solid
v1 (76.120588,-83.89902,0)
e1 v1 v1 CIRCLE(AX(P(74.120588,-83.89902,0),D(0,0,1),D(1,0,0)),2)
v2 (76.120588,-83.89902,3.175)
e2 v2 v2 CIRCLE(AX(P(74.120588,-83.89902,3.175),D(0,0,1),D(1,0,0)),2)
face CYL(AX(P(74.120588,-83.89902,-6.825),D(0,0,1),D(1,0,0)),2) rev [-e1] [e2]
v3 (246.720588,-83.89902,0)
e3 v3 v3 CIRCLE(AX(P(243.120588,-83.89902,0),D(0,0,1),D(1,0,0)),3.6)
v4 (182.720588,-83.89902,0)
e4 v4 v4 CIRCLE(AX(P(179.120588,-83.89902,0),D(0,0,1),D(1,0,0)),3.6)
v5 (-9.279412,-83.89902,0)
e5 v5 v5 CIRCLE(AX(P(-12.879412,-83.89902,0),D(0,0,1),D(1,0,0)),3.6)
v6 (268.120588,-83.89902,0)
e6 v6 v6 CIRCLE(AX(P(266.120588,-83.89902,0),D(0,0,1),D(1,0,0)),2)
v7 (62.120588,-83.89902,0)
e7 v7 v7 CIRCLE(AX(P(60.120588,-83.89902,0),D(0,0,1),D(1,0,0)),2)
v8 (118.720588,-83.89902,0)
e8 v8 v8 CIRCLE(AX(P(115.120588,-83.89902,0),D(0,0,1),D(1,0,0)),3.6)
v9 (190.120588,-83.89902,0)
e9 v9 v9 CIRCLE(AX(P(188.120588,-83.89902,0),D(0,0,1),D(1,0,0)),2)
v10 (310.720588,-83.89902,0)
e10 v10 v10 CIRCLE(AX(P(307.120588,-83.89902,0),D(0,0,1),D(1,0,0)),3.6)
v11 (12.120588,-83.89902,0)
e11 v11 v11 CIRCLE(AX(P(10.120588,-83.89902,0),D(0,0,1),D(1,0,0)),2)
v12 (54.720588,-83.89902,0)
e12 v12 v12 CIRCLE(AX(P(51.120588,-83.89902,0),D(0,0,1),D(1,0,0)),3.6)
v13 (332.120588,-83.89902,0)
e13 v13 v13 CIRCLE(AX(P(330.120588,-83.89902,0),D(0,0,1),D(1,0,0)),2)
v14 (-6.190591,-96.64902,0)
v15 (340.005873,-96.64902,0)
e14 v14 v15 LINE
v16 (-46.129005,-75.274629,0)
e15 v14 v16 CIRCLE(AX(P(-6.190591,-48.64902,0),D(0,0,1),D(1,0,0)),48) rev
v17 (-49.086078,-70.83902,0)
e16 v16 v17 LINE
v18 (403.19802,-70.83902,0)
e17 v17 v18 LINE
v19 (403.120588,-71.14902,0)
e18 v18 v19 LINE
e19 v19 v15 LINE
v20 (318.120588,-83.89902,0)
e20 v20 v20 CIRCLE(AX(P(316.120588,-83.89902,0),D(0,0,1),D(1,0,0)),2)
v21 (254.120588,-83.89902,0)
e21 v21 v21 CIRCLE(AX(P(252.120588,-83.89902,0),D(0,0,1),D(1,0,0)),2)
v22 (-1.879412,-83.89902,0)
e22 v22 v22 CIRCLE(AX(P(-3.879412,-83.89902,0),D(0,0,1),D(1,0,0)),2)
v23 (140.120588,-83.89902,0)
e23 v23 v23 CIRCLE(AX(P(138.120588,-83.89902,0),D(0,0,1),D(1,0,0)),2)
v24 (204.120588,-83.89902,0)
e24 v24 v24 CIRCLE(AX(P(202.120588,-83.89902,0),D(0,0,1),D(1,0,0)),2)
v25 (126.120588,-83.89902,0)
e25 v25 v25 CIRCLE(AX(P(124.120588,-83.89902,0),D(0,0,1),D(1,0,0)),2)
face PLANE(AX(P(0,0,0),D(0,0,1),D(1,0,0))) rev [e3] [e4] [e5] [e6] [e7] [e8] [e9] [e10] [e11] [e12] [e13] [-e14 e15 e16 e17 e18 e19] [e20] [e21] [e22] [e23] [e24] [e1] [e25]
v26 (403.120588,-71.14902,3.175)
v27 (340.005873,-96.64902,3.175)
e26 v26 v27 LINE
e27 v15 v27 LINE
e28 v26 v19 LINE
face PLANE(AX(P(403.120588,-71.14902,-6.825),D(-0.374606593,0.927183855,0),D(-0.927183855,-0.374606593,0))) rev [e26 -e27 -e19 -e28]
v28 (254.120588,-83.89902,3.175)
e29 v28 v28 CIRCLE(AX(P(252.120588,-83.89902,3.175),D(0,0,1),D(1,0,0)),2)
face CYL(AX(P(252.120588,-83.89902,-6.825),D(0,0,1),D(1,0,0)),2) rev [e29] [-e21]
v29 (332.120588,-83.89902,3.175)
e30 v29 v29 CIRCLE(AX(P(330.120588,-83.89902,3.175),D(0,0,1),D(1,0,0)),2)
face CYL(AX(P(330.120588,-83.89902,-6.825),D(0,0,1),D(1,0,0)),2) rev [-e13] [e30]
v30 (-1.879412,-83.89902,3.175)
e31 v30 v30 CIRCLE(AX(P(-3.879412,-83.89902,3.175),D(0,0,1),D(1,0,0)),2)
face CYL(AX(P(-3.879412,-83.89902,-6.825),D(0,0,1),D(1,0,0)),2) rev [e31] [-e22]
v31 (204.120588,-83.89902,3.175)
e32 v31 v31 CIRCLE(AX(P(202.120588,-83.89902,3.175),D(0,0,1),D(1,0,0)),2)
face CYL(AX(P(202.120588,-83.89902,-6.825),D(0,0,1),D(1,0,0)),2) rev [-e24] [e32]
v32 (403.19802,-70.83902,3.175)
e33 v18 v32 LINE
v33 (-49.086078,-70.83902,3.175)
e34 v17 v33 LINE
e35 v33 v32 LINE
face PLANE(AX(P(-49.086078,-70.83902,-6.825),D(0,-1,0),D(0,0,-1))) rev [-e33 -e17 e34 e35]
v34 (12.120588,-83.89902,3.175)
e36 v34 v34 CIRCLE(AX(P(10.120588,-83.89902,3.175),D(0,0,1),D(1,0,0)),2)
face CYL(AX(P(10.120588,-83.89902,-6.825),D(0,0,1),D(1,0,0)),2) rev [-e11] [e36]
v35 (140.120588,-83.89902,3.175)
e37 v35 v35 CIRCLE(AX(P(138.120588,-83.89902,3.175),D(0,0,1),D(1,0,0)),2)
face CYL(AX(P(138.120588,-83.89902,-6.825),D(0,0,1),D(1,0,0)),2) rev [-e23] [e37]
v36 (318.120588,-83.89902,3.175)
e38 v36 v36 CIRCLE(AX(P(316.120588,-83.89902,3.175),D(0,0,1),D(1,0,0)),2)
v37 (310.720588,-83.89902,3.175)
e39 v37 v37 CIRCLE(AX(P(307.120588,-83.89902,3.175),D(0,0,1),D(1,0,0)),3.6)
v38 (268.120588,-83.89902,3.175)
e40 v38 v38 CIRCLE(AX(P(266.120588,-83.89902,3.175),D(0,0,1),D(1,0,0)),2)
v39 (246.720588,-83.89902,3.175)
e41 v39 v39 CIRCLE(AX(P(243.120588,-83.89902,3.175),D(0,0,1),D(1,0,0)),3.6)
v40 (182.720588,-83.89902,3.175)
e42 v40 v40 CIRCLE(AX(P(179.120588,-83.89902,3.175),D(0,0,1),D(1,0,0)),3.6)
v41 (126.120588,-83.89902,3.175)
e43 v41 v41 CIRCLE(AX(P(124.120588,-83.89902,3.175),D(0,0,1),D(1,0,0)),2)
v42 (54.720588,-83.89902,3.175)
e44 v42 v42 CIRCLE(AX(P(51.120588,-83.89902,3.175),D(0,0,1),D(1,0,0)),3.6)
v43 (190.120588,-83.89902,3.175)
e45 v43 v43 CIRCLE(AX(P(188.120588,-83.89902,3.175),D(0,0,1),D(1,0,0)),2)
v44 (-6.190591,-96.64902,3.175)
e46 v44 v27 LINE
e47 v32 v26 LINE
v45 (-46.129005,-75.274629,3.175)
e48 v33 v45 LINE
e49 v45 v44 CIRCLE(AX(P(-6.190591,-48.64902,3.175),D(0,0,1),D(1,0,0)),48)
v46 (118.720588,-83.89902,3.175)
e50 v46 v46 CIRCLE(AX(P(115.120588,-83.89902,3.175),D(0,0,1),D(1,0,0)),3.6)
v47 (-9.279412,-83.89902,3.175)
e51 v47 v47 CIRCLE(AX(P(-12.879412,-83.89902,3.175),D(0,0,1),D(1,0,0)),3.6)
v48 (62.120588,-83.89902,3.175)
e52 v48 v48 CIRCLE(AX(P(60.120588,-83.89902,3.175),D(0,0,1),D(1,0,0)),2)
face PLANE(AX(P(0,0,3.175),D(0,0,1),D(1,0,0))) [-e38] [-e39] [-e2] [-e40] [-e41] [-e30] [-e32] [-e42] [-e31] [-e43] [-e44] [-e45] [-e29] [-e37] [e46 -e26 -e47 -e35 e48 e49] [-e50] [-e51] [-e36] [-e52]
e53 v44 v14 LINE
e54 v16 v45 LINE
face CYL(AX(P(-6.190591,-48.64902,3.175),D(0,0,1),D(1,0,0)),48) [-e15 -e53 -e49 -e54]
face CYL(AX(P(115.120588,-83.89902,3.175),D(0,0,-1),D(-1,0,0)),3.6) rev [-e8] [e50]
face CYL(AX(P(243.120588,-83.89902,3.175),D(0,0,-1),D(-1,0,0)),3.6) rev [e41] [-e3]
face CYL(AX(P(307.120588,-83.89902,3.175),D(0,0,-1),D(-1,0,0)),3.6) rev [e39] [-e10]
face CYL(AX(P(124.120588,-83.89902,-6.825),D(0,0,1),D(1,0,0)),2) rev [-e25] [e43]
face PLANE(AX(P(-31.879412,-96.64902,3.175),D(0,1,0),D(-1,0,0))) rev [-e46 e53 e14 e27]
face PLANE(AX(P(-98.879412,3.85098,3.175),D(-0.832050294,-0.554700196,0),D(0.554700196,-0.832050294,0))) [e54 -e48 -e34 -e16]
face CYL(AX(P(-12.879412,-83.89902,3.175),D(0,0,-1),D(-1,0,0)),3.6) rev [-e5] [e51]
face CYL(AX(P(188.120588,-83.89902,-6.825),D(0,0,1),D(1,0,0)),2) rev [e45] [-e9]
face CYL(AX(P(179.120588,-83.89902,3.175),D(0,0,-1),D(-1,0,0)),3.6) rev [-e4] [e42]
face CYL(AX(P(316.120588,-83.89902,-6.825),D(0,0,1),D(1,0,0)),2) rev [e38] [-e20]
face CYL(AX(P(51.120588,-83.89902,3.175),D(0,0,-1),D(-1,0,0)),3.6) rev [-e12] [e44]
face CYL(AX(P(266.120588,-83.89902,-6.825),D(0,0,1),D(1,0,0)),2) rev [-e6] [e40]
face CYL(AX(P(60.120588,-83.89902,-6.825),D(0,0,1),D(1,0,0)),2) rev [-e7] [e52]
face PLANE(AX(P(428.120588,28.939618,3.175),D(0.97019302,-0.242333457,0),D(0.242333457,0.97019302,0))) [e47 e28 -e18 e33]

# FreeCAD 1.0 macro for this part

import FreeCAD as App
import Part
import Sketcher
Q = App.Units.Quantity


def edges_at(feature, points):
    """Names of the edges that pass closest to the given points."""
    edges = feature.Shape.Edges
    near = lambda p: min(range(len(edges)), key=lambda i: edges[i].distToShape(Part.Vertex(*p))[0])
    return sorted({f"Edge{near(p) + 1}" for p in points})


def add_polygon(sketch, points):
    """Adds a closed chain of lines whose ends are joined by coincident constraints."""
    first, n = sketch.GeometryCount, len(points)
    for a, b in zip(points, points[1:] + points[:1]):
        sketch.addGeometry(Part.LineSegment(App.Vector(*a, 0), App.Vector(*b, 0)), False)
    for i in range(n):
        sketch.addConstraint(Sketcher.Constraint("Coincident", first + i, 2, first + (i + 1) % n, 1))

doc = App.newDocument("Part")
body = doc.addObject("PartDesign::Body", "Body")

# Sketch on XY plane
sketch1 = body.newObject("Sketcher::SketchObject", "Sketch")
sketch1.AttachmentSupport = (doc.getObject("XY_Plane"), [""])
sketch1.MapMode = "FlatFace"
add_polygon(sketch1, [(428, 29), (-116, 29), (-99, 4), (-32, -97), (366, -97), (403, -71)])  # lines 0-5
sketch1.addConstraint(Sketcher.Constraint("Horizontal", 0))
sketch1.addConstraint(Sketcher.Constraint("Horizontal", 3))
sketch1.addConstraint(Sketcher.Constraint("Parallel", 1, 2))
sketch1.addConstraint(Sketcher.Constraint("DistanceX", -1, 1, 3, 2, 366.0))
sketch1.addConstraint(Sketcher.Constraint("DistanceX", 1, 2, 2, 2, 67.0))
sketch1.addConstraint(Sketcher.Constraint("DistanceX", 2, 2, 4, 2, 435.0))
sketch1.addConstraint(Sketcher.Constraint("DistanceY", 4, 2, 1, 2, 75.0))
sketch1.addConstraint(Sketcher.Constraint("DistanceX", 4, 2, 5, 2, 25.0))
sketch1.addConstraint(Sketcher.Constraint("DistanceY", 2, 2, 1, 2, 100.5))
sketch1.addConstraint(Sketcher.Constraint("DistanceX", 0, 2, 0, 1, 543.725758))
sketch1.addConstraint(Sketcher.Constraint("DistanceX", 3, 1, 3, 2, 397.879412))
sketch1.addConstraint(Sketcher.Constraint("DistanceY", -1, 1, 1, 2, 3.85098))
pad1 = body.newObject("PartDesign::Pad", "Pad")
pad1.Profile = sketch1
pad1.Length = 3.175

# Sketch on XY plane
sketch2 = body.newObject("Sketcher::SketchObject", "Sketch001")
sketch2.AttachmentSupport = (doc.getObject("XY_Plane"), [""])
sketch2.MapMode = "FlatFace"
sketch2.addGeometry(Part.Circle(App.Vector(-12.9, -83.9, 0), App.Vector(0, 0, 1), 3.6), False)
sketch2.addGeometry(Part.Circle(App.Vector(51.1, -83.9, 0), App.Vector(0, 0, 1), 3.6), False)
sketch2.addGeometry(Part.Circle(App.Vector(115.1, -83.9, 0), App.Vector(0, 0, 1), 3.6), False)
sketch2.addGeometry(Part.Circle(App.Vector(179.1, -83.9, 0), App.Vector(0, 0, 1), 3.6), False)
sketch2.addGeometry(Part.Circle(App.Vector(243.1, -83.9, 0), App.Vector(0, 0, 1), 3.6), False)
sketch2.addGeometry(Part.Circle(App.Vector(307.1, -83.9, 0), App.Vector(0, 0, 1), 3.6), False)
sketch2.addConstraint(Sketcher.Constraint("Equal", 0, 1))
sketch2.addConstraint(Sketcher.Constraint("Equal", 1, 2))
sketch2.addConstraint(Sketcher.Constraint("Equal", 2, 3))
sketch2.addConstraint(Sketcher.Constraint("Equal", 3, 4))
sketch2.addConstraint(Sketcher.Constraint("Equal", 4, 5))
sketch2.addConstraint(Sketcher.Constraint("Horizontal", 0, 3, 1, 3))
sketch2.addConstraint(Sketcher.Constraint("Horizontal", 1, 3, 2, 3))
sketch2.addConstraint(Sketcher.Constraint("Horizontal", 2, 3, 3, 3))
sketch2.addConstraint(Sketcher.Constraint("Horizontal", 3, 3, 4, 3))
sketch2.addConstraint(Sketcher.Constraint("Horizontal", 4, 3, 5, 3))
sketch2.addConstraint(Sketcher.Constraint("Diameter", 0, 7.2))
sketch2.addConstraint(Sketcher.Constraint("DistanceX", 0, 3, 1, 3, 64.0))
sketch2.addConstraint(Sketcher.Constraint("DistanceX", 1, 3, 2, 3, 64.0))
sketch2.addConstraint(Sketcher.Constraint("DistanceX", 2, 3, 3, 3, 64.0))
sketch2.addConstraint(Sketcher.Constraint("DistanceX", 3, 3, 4, 3, 64.0))
sketch2.addConstraint(Sketcher.Constraint("DistanceX", 4, 3, 5, 3, 64.0))
sketch2.addConstraint(Sketcher.Constraint("DistanceX", 0, 3, -1, 1, 12.879412))
sketch2.addConstraint(Sketcher.Constraint("DistanceY", 0, 3, -1, 1, 83.89902))
pocket1 = body.newObject("PartDesign::Pocket", "Pocket")
pocket1.Profile = sketch2
pocket1.Type = "ThroughAll"
pocket1.Reversed = True
doc.recompute()

fillet = body.newObject("PartDesign::Fillet", "Fillet")
fillet.Base = (pocket1, edges_at(pocket1, [(-31.879, -96.649, 1.587)]))
fillet.Radius = 48

# Sketch on XY plane
sketch3 = body.newObject("Sketcher::SketchObject", "Sketch002")
sketch3.AttachmentSupport = (doc.getObject("XY_Plane"), [""])
sketch3.MapMode = "FlatFace"
sketch3.AttachmentOffset = App.Placement(App.Vector(0, 0, 3.175), App.Rotation())
add_polygon(sketch3, [(403, -71), (340, -97), (366, -97)])  # lines 0-2
sketch3.addConstraint(Sketcher.Constraint("Horizontal", 1))
sketch3.addConstraint(Sketcher.Constraint("Angle", 0, Q("-158 deg")))
sketch3.addConstraint(Sketcher.Constraint("DistanceX", -1, 1, 1, 2, 366.0))
sketch3.addConstraint(Sketcher.Constraint("DistanceY", 1, 2, 2, 2, 25.5))
sketch3.addConstraint(Sketcher.Constraint("Distance", 2, 45.035409))
sketch3.addConstraint(Sketcher.Constraint("DistanceY", 0, 2, -1, 1, 96.64902))
pocket2 = body.newObject("PartDesign::Pocket", "Pocket001")
pocket2.Profile = sketch3
pocket2.Length = 10

# Sketch on XY plane
sketch4 = body.newObject("Sketcher::SketchObject", "Sketch003")
sketch4.AttachmentSupport = (doc.getObject("XY_Plane"), [""])
sketch4.MapMode = "FlatFace"
sketch4.AttachmentOffset = App.Placement(App.Vector(0, 0, 3.175), App.Rotation())
add_polygon(sketch4, [(-49, -71), (403, -71), (428, 29), (-116, 29)])  # lines 0-3
sketch4.addConstraint(Sketcher.Constraint("Horizontal", 0))
sketch4.addConstraint(Sketcher.Constraint("Horizontal", 2))
sketch4.addConstraint(Sketcher.Constraint("DistanceX", 0, 1, 0, 2, 452.284098))
sketch4.addConstraint(Sketcher.Constraint("DistanceX", 2, 2, 2, 1, 543.725758))
sketch4.addConstraint(Sketcher.Constraint("Distance", 1, 102.84411))
sketch4.addConstraint(Sketcher.Constraint("DistanceX", -1, 1, 0, 2, 403.19802))
sketch4.addConstraint(Sketcher.Constraint("DistanceY", 0, 2, -1, 1, 70.83902))
sketch4.addConstraint(Sketcher.Constraint("DistanceX", -1, 1, 1, 2, 428.120588))
pocket3 = body.newObject("PartDesign::Pocket", "Pocket002")
pocket3.Profile = sketch4
pocket3.Length = 10

# Sketch on XY plane
sketch5 = body.newObject("Sketcher::SketchObject", "Sketch004")
sketch5.AttachmentSupport = (doc.getObject("XY_Plane"), [""])
sketch5.MapMode = "FlatFace"
sketch5.AttachmentOffset = App.Placement(App.Vector(0, 0, 3.175), App.Rotation())
sketch5.addGeometry(Part.Circle(App.Vector(-3.9, -83.9, 0), App.Vector(0, 0, 1), 2), False)
sketch5.addGeometry(Part.Circle(App.Vector(10.1, -83.9, 0), App.Vector(0, 0, 1), 2), False)
sketch5.addGeometry(Part.Circle(App.Vector(60.1, -83.9, 0), App.Vector(0, 0, 1), 2), False)
sketch5.addGeometry(Part.Circle(App.Vector(74.1, -83.9, 0), App.Vector(0, 0, 1), 2), False)
sketch5.addGeometry(Part.Circle(App.Vector(124.1, -83.9, 0), App.Vector(0, 0, 1), 2), False)
sketch5.addGeometry(Part.Circle(App.Vector(138.1, -83.9, 0), App.Vector(0, 0, 1), 2), False)
sketch5.addGeometry(Part.Circle(App.Vector(188.1, -83.9, 0), App.Vector(0, 0, 1), 2), False)
sketch5.addGeometry(Part.Circle(App.Vector(202.1, -83.9, 0), App.Vector(0, 0, 1), 2), False)
sketch5.addGeometry(Part.Circle(App.Vector(252.1, -83.9, 0), App.Vector(0, 0, 1), 2), False)
sketch5.addGeometry(Part.Circle(App.Vector(266.1, -83.9, 0), App.Vector(0, 0, 1), 2), False)
sketch5.addGeometry(Part.Circle(App.Vector(316.1, -83.9, 0), App.Vector(0, 0, 1), 2), False)
sketch5.addGeometry(Part.Circle(App.Vector(330.1, -83.9, 0), App.Vector(0, 0, 1), 2), False)
sketch5.addConstraint(Sketcher.Constraint("Equal", 0, 1))
sketch5.addConstraint(Sketcher.Constraint("Equal", 1, 2))
sketch5.addConstraint(Sketcher.Constraint("Equal", 2, 3))
sketch5.addConstraint(Sketcher.Constraint("Equal", 3, 4))
sketch5.addConstraint(Sketcher.Constraint("Equal", 4, 5))
sketch5.addConstraint(Sketcher.Constraint("Equal", 5, 6))
sketch5.addConstraint(Sketcher.Constraint("Equal", 6, 7))
sketch5.addConstraint(Sketcher.Constraint("Equal", 7, 8))
sketch5.addConstraint(Sketcher.Constraint("Equal", 8, 9))
sketch5.addConstraint(Sketcher.Constraint("Equal", 9, 10))
sketch5.addConstraint(Sketcher.Constraint("Equal", 10, 11))
sketch5.addConstraint(Sketcher.Constraint("Horizontal", 0, 3, 1, 3))
sketch5.addConstraint(Sketcher.Constraint("Horizontal", 1, 3, 2, 3))
sketch5.addConstraint(Sketcher.Constraint("Horizontal", 2, 3, 3, 3))
sketch5.addConstraint(Sketcher.Constraint("Horizontal", 3, 3, 4, 3))
sketch5.addConstraint(Sketcher.Constraint("Horizontal", 4, 3, 5, 3))
sketch5.addConstraint(Sketcher.Constraint("Horizontal", 5, 3, 6, 3))
sketch5.addConstraint(Sketcher.Constraint("Horizontal", 6, 3, 7, 3))
sketch5.addConstraint(Sketcher.Constraint("Horizontal", 7, 3, 8, 3))
sketch5.addConstraint(Sketcher.Constraint("Horizontal", 8, 3, 9, 3))
sketch5.addConstraint(Sketcher.Constraint("Horizontal", 9, 3, 10, 3))
sketch5.addConstraint(Sketcher.Constraint("Horizontal", 10, 3, 11, 3))
sketch5.addConstraint(Sketcher.Constraint("Diameter", 0, 4.0))
sketch5.addConstraint(Sketcher.Constraint("DistanceX", 0, 3, 1, 3, 14.0))
sketch5.addConstraint(Sketcher.Constraint("DistanceX", 1, 3, 2, 3, 50.0))
sketch5.addConstraint(Sketcher.Constraint("DistanceX", 2, 3, 3, 3, 14.0))
sketch5.addConstraint(Sketcher.Constraint("DistanceX", 3, 3, 4, 3, 50.0))
sketch5.addConstraint(Sketcher.Constraint("DistanceX", 4, 3, 5, 3, 14.0))
sketch5.addConstraint(Sketcher.Constraint("DistanceX", 5, 3, 6, 3, 50.0))
sketch5.addConstraint(Sketcher.Constraint("DistanceX", 6, 3, 7, 3, 14.0))
sketch5.addConstraint(Sketcher.Constraint("DistanceX", 7, 3, 8, 3, 50.0))
sketch5.addConstraint(Sketcher.Constraint("DistanceX", 8, 3, 9, 3, 14.0))
sketch5.addConstraint(Sketcher.Constraint("DistanceX", 9, 3, 10, 3, 50.0))
sketch5.addConstraint(Sketcher.Constraint("DistanceX", 10, 3, 11, 3, 14.0))
sketch5.addConstraint(Sketcher.Constraint("DistanceX", 0, 3, -1, 1, 3.879412))
sketch5.addConstraint(Sketcher.Constraint("DistanceY", 0, 3, -1, 1, 83.89902))
pocket4 = body.newObject("PartDesign::Pocket", "Pocket003")
pocket4.Profile = sketch5
pocket4.Length = 10

doc.recompute()
